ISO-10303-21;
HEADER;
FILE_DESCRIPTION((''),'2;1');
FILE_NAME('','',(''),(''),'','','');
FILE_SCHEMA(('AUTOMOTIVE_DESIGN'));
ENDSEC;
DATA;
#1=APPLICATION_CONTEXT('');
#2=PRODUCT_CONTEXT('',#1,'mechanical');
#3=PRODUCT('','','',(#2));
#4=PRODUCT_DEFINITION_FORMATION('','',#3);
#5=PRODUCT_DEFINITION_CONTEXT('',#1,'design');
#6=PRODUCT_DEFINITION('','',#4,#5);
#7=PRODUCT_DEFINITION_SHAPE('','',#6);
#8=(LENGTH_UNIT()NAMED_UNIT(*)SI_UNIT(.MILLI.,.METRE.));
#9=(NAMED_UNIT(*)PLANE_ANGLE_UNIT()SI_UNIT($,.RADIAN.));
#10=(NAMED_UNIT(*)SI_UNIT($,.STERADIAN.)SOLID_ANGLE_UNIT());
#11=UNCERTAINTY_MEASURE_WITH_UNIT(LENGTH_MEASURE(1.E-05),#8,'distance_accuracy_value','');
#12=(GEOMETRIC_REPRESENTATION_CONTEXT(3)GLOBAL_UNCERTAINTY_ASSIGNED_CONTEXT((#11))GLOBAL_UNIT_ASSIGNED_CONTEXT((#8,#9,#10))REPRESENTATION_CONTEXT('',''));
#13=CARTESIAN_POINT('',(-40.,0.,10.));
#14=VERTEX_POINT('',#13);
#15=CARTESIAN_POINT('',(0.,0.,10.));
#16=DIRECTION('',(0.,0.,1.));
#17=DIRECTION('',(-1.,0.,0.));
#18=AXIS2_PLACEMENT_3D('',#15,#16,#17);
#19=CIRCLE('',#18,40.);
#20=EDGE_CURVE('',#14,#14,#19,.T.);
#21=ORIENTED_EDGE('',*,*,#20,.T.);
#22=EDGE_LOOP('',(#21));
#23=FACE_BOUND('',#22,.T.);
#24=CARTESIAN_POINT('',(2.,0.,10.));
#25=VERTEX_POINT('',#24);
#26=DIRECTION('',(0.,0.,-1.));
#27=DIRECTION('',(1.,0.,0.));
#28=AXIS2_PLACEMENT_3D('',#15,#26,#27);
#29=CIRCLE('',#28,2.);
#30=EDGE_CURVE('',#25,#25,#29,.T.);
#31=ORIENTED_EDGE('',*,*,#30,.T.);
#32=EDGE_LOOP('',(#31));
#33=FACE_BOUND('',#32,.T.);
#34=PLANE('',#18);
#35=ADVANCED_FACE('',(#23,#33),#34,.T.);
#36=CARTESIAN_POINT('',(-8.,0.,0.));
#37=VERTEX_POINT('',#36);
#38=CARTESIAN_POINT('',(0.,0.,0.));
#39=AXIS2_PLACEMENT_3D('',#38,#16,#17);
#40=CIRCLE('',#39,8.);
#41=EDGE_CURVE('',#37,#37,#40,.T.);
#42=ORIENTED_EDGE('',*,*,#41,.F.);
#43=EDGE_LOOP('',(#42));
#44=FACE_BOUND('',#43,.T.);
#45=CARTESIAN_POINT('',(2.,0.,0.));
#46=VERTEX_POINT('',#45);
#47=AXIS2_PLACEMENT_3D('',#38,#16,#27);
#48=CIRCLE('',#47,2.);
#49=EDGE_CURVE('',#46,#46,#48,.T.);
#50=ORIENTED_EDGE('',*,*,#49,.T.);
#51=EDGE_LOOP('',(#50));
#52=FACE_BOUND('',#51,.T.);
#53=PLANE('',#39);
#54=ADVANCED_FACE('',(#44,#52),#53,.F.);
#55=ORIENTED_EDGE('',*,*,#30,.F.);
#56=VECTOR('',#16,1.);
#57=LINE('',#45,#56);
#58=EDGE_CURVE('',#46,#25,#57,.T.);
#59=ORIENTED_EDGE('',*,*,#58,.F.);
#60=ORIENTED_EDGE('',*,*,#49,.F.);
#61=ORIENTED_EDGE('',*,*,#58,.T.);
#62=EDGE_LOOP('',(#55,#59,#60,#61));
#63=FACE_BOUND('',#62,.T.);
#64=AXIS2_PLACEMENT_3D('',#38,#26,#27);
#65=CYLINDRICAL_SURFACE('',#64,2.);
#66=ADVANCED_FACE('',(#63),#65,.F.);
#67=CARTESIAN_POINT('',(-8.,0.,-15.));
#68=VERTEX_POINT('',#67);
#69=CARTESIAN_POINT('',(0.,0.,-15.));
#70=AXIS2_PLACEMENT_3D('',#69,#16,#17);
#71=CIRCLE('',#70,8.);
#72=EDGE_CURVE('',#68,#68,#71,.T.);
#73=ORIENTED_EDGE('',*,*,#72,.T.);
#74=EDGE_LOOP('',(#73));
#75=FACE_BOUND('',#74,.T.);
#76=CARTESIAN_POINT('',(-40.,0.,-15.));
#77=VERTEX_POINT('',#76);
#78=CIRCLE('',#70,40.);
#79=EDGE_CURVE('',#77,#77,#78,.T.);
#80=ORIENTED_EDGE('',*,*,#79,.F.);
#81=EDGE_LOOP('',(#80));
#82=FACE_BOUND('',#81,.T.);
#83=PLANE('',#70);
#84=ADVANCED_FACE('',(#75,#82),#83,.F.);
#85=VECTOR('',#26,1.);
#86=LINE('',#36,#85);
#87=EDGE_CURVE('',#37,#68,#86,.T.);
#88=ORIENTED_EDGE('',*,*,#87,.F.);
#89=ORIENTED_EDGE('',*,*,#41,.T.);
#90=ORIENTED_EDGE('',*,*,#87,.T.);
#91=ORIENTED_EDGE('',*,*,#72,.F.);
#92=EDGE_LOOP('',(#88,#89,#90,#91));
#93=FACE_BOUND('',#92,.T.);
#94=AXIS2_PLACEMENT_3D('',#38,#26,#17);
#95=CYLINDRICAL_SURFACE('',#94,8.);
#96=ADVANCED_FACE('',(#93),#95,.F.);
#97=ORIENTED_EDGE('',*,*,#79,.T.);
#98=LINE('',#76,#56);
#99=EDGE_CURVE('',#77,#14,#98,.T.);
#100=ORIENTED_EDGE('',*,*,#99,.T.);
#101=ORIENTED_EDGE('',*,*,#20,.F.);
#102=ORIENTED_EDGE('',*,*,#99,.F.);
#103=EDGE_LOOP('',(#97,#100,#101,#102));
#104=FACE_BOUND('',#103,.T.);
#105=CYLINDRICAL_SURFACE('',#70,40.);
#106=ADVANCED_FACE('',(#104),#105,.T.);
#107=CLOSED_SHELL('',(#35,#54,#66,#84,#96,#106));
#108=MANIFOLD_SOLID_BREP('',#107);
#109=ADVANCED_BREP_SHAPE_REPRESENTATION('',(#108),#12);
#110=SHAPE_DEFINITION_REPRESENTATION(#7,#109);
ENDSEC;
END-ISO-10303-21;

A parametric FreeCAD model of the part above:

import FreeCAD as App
import Part
import Sketcher
from FreeCAD import Vector
Q = App.Units.Quantity


def add_polygon(sketch, points):
    """Adds a closed chain of lines whose ends are joined by coincident constraints."""
    first, n = sketch.GeometryCount, len(points)
    for a, b in zip(points, points[1:] + points[:1]):
        sketch.addGeometry(Part.LineSegment(App.Vector(*a, 0), App.Vector(*b, 0)), False)
    for i in range(n):
        sketch.addConstraint(Sketcher.Constraint("Coincident", first + i, 2, first + (i + 1) % n, 1))

doc = App.newDocument("Part")
params = doc.addObject("Spreadsheet::Sheet", "Params")
for row, (alias, value) in enumerate([
    ("sketch1_width", "8 mm"),
    ("sketch1_width2", "40 mm"),
    ("sketch1_height", "15 mm"),
    ("sketch1_height2", "10 mm"),
    ("revolution_angle", "360 deg"),
    ("sketch2_diameter", "4 mm"),
], start=1):
    params.set(f"A{row}", alias)
    params.set(f"B{row}", "=" + value)
    params.setAlias(f"B{row}", alias)

body = doc.addObject("PartDesign::Body", "Body")

# Sketch on XZ plane
sketch1 = body.newObject("Sketcher::SketchObject", "Sketch")
sketch1.AttachmentSupport = (doc.getObject("XZ_Plane"), [""])
sketch1.MapMode = "FlatFace"
add_polygon(sketch1, [(-8, -15), (-8, 0), (0, 0), (0, 10), (-40, 10), (-40, -15)])  # lines 0-5
sketch1.addConstraint(Sketcher.Constraint("Vertical", 0))
sketch1.addConstraint(Sketcher.Constraint("Horizontal", 1))
sketch1.addConstraint(Sketcher.Constraint("Vertical", 2))
sketch1.addConstraint(Sketcher.Constraint("Horizontal", 3))
sketch1.addConstraint(Sketcher.Constraint("Vertical", 4))
sketch1.addConstraint(Sketcher.Constraint("Horizontal", 5))
sketch1.addConstraint(Sketcher.Constraint("Coincident", 1, 2, -1, 1))
sketch1.addConstraint(Sketcher.Constraint("DistanceX", 1, 1, 1, 2, Q("8 mm")))
sketch1.addConstraint(Sketcher.Constraint("DistanceX", 3, 2, 3, 1, Q("40 mm")))
sketch1.addConstraint(Sketcher.Constraint("DistanceY", 0, 1, 0, 2, Q("15 mm")))
sketch1.addConstraint(Sketcher.Constraint("DistanceY", 2, 1, 2, 2, Q("10 mm")))
sketch1.setExpression("Constraints[13]", "Params.sketch1_width")
sketch1.setExpression("Constraints[14]", "Params.sketch1_width2")
sketch1.setExpression("Constraints[15]", "Params.sketch1_height")
sketch1.setExpression("Constraints[16]", "Params.sketch1_height2")
revolution = body.newObject("PartDesign::Revolution", "Revolution")
revolution.Profile = sketch1
revolution.ReferenceAxis = (sketch1, ["V_Axis"])
revolution.setExpression("Angle", "Params.revolution_angle")

# Sketch on XY plane
sketch2 = body.newObject("Sketcher::SketchObject", "Sketch001")
sketch2.AttachmentSupport = (doc.getObject("XY_Plane"), [""])
sketch2.MapMode = "FlatFace"
sketch2.addGeometry(Part.Circle(Vector(0, 0, 0), Vector(0, 0, 1), 2), False)
sketch2.addConstraint(Sketcher.Constraint("Coincident", 0, 3, -1, 1))
sketch2.addConstraint(Sketcher.Constraint("Diameter", 0, Q("4 mm")))
sketch2.setExpression("Constraints[1]", "Params.sketch2_diameter")
pocket1 = body.newObject("PartDesign::Pocket", "Pocket")
pocket1.Profile = sketch2
pocket1.Type = "ThroughAll"
pocket1.Reversed = True

doc.recompute()
